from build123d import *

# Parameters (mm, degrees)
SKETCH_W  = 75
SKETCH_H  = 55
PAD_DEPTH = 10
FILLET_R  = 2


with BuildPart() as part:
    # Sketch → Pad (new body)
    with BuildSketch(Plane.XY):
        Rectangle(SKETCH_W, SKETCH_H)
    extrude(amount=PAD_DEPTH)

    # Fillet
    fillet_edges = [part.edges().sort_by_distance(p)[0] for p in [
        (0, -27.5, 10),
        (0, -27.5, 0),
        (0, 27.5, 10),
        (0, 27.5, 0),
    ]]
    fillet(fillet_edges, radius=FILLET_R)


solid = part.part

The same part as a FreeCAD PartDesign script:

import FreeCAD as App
import Part
import Sketcher
from FreeCAD import Vector


def edges_at(feature, points):
    """Names of the edges that pass closest to the given points."""
    edges = feature.Shape.Edges
    near = lambda p: min(range(len(edges)), key=lambda i: edges[i].distToShape(Part.Vertex(*p))[0])
    return sorted({f"Edge{near(p) + 1}" for p in points})


def add_polygon(sketch, points):
    """Adds a closed chain of lines whose ends are joined by coincident constraints."""
    first, n = sketch.GeometryCount, len(points)
    for a, b in zip(points, points[1:] + points[:1]):
        sketch.addGeometry(Part.LineSegment(App.Vector(*a, 0), App.Vector(*b, 0)), False)
    for i in range(n):
        sketch.addConstraint(Sketcher.Constraint("Coincident", first + i, 2, first + (i + 1) % n, 1))

doc = App.newDocument("Part")
body = doc.addObject("PartDesign::Body", "Body")

sketch1 = body.newObject("Sketcher::SketchObject", "Sketch")
sketch1.AttachmentSupport = (doc.getObject("XY_Plane"), [""])
sketch1.MapMode = "FlatFace"
add_polygon(sketch1, [(-38, 28), (-38, -28), (38, -28), (38, 28)])
sketch1.addConstraint(Sketcher.Constraint("Vertical", 0))
sketch1.addConstraint(Sketcher.Constraint("Horizontal", 1))
sketch1.addConstraint(Sketcher.Constraint("Vertical", 2))
sketch1.addConstraint(Sketcher.Constraint("Horizontal", 3))
sketch1.addConstraint(Sketcher.Constraint("Symmetric", 0, 2, 2, 2, -1, 1))
sketch1.addConstraint(Sketcher.Constraint("DistanceX", 1, 1, 1, 2, 75.0))
sketch1.addConstraint(Sketcher.Constraint("DistanceY", 0, 2, 0, 1, 55.0))
pad1 = body.newObject("PartDesign::Pad", "Pad")
pad1.Profile = sketch1
pad1.Length = 10
doc.recompute()

fillet = body.newObject("PartDesign::Fillet", "Fillet")
fillet.Base = (pad1, edges_at(pad1, [
    (0, -27.5, 10),
    (0, -27.5, 0),
    (0, 27.5, 10),
    (0, 27.5, 0),
]))
fillet.Radius = 2

doc.recompute()
